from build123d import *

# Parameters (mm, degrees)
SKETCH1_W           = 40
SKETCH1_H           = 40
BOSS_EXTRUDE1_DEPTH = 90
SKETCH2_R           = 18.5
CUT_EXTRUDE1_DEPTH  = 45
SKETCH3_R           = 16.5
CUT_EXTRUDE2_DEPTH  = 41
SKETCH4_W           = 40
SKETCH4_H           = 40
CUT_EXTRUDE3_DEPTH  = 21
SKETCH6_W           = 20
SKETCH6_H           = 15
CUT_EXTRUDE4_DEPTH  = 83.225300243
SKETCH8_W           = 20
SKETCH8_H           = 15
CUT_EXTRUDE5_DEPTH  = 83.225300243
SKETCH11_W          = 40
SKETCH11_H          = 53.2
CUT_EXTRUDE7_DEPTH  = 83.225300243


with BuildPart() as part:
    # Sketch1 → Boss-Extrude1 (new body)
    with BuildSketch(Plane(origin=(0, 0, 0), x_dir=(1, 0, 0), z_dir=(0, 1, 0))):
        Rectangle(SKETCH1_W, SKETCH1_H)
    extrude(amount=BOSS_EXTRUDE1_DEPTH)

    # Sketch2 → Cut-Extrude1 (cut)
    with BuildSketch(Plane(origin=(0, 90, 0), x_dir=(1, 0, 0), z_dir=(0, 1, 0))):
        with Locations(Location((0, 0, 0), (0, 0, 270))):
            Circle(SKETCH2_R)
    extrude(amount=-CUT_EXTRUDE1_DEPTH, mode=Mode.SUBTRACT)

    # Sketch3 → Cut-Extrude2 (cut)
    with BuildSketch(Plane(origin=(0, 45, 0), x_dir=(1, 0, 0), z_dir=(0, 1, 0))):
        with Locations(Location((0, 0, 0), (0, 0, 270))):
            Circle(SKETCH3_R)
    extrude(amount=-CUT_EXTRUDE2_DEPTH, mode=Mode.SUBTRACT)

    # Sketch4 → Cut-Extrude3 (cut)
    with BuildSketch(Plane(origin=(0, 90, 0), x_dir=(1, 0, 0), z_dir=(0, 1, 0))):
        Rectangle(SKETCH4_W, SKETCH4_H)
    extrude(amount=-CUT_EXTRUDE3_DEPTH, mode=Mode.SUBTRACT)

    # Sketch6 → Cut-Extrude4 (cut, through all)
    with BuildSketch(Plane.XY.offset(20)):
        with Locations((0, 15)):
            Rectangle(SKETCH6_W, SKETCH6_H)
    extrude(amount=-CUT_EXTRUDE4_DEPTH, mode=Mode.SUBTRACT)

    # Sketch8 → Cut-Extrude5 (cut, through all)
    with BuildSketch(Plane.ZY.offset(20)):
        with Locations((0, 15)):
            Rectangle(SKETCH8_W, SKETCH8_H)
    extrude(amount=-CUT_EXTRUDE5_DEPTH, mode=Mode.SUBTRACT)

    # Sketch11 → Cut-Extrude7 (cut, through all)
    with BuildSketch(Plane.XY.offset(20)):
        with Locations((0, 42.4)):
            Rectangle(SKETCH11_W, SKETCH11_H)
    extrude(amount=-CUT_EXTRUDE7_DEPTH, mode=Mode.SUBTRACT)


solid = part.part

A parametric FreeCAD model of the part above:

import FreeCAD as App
import Part
import Sketcher
from FreeCAD import Vector

doc = App.newDocument("Part")
body = doc.addObject("PartDesign::Body", "Body")

# Sketch on XZ plane
sketch1 = body.newObject("Sketcher::SketchObject", "Sketch")
sketch1.AttachmentSupport = (doc.getObject("XZ_Plane"), [""])
sketch1.MapMode = "FlatFace"
sketch1.addGeometry(Part.LineSegment(Vector(-20, -20, 0), Vector(-20, 20, 0)), False)
sketch1.addGeometry(Part.LineSegment(Vector(-20, 20, 0), Vector(20, 20, 0)), False)
sketch1.addGeometry(Part.LineSegment(Vector(20, 20, 0), Vector(20, -20, 0)), False)
sketch1.addGeometry(Part.LineSegment(Vector(20, -20, 0), Vector(-20, -20, 0)), False)
sketch1.addConstraint(Sketcher.Constraint("Coincident", 0, 2, 1, 1))
sketch1.addConstraint(Sketcher.Constraint("Coincident", 1, 2, 2, 1))
sketch1.addConstraint(Sketcher.Constraint("Coincident", 2, 2, 3, 1))
sketch1.addConstraint(Sketcher.Constraint("Coincident", 3, 2, 0, 1))
sketch1.addConstraint(Sketcher.Constraint("Vertical", 0))
sketch1.addConstraint(Sketcher.Constraint("Horizontal", 1))
sketch1.addConstraint(Sketcher.Constraint("Vertical", 2))
sketch1.addConstraint(Sketcher.Constraint("Horizontal", 3))
sketch1.addConstraint(Sketcher.Constraint("Symmetric", 0, 2, 2, 2, -1, 1))
sketch1.addConstraint(Sketcher.Constraint("Equal", 3, 0))
sketch1.addConstraint(Sketcher.Constraint("DistanceX", 1, 1, 1, 2, 40.0))
pad1 = body.newObject("PartDesign::Pad", "Pad")
pad1.Profile = sketch1
pad1.Length = 90
pad1.Reversed = True

# Sketch on XZ plane
sketch2 = body.newObject("Sketcher::SketchObject", "Sketch001")
sketch2.AttachmentSupport = (doc.getObject("XZ_Plane"), [""])
sketch2.MapMode = "FlatFace"
sketch2.AttachmentOffset = App.Placement(Vector(0, 0, -90), App.Rotation())
sketch2.addGeometry(Part.Circle(Vector(0, 0, 0), Vector(0, 0, 1), 18), False)
sketch2.addConstraint(Sketcher.Constraint("Coincident", 0, 3, -1, 1))
sketch2.addConstraint(Sketcher.Constraint("Diameter", 0, 37.0))
pocket1 = body.newObject("PartDesign::Pocket", "Pocket")
pocket1.Profile = sketch2
pocket1.Length = 45
pocket1.Reversed = True

# Sketch on XZ plane
sketch3 = body.newObject("Sketcher::SketchObject", "Sketch002")
sketch3.AttachmentSupport = (doc.getObject("XZ_Plane"), [""])
sketch3.MapMode = "FlatFace"
sketch3.AttachmentOffset = App.Placement(Vector(0, 0, -45), App.Rotation())
sketch3.addGeometry(Part.Circle(Vector(0, 0, 0), Vector(0, 0, 1), 16), False)
sketch3.addConstraint(Sketcher.Constraint("Coincident", 0, 3, -1, 1))
sketch3.addConstraint(Sketcher.Constraint("Diameter", 0, 33.0))
pocket2 = body.newObject("PartDesign::Pocket", "Pocket001")
pocket2.Profile = sketch3
pocket2.Length = 41
pocket2.Reversed = True

# Sketch on XZ plane
sketch4 = body.newObject("Sketcher::SketchObject", "Sketch003")
sketch4.AttachmentSupport = (doc.getObject("XZ_Plane"), [""])
sketch4.MapMode = "FlatFace"
sketch4.AttachmentOffset = App.Placement(Vector(0, 0, -90), App.Rotation())
sketch4.addGeometry(Part.LineSegment(Vector(-20, -20, 0), Vector(-20, 20, 0)), False)
sketch4.addGeometry(Part.LineSegment(Vector(-20, 20, 0), Vector(20, 20, 0)), False)
sketch4.addGeometry(Part.LineSegment(Vector(20, 20, 0), Vector(20, -20, 0)), False)
sketch4.addGeometry(Part.LineSegment(Vector(20, -20, 0), Vector(-20, -20, 0)), False)
sketch4.addConstraint(Sketcher.Constraint("Coincident", 0, 2, 1, 1))
sketch4.addConstraint(Sketcher.Constraint("Coincident", 1, 2, 2, 1))
sketch4.addConstraint(Sketcher.Constraint("Coincident", 2, 2, 3, 1))
sketch4.addConstraint(Sketcher.Constraint("Coincident", 3, 2, 0, 1))
sketch4.addConstraint(Sketcher.Constraint("Vertical", 0))
sketch4.addConstraint(Sketcher.Constraint("Horizontal", 1))
sketch4.addConstraint(Sketcher.Constraint("Vertical", 2))
sketch4.addConstraint(Sketcher.Constraint("Horizontal", 3))
sketch4.addConstraint(Sketcher.Constraint("Symmetric", 0, 2, 2, 2, -1, 1))
sketch4.addConstraint(Sketcher.Constraint("Equal", 3, 0))
sketch4.addConstraint(Sketcher.Constraint("DistanceX", 1, 1, 1, 2, 40.0))
pocket3 = body.newObject("PartDesign::Pocket", "Pocket002")
pocket3.Profile = sketch4
pocket3.Length = 21
pocket3.Reversed = True

# Sketch on XY plane
sketch5 = body.newObject("Sketcher::SketchObject", "Sketch004")
sketch5.AttachmentSupport = (doc.getObject("XY_Plane"), [""])
sketch5.MapMode = "FlatFace"
sketch5.AttachmentOffset = App.Placement(Vector(0, 0, 20), App.Rotation())
sketch5.addGeometry(Part.LineSegment(Vector(-10, 22, 0), Vector(-10, 8, 0)), False)
sketch5.addGeometry(Part.LineSegment(Vector(-10, 8, 0), Vector(10, 8, 0)), False)
sketch5.addGeometry(Part.LineSegment(Vector(10, 8, 0), Vector(10, 22, 0)), False)
sketch5.addGeometry(Part.LineSegment(Vector(10, 22, 0), Vector(-10, 22, 0)), False)
sketch5.addConstraint(Sketcher.Constraint("Coincident", 0, 2, 1, 1))
sketch5.addConstraint(Sketcher.Constraint("Coincident", 1, 2, 2, 1))
sketch5.addConstraint(Sketcher.Constraint("Coincident", 2, 2, 3, 1))
sketch5.addConstraint(Sketcher.Constraint("Coincident", 3, 2, 0, 1))
sketch5.addConstraint(Sketcher.Constraint("Vertical", 0))
sketch5.addConstraint(Sketcher.Constraint("Horizontal", 1))
sketch5.addConstraint(Sketcher.Constraint("Vertical", 2))
sketch5.addConstraint(Sketcher.Constraint("Horizontal", 3))
sketch5.addConstraint(Sketcher.Constraint("DistanceX", 1, 1, 1, 2, 20.0))
sketch5.addConstraint(Sketcher.Constraint("DistanceY", 0, 2, 0, 1, 15.0))
sketch5.addConstraint(Sketcher.Constraint("DistanceX", 0, 2, -1, 1, 10.0))
sketch5.addConstraint(Sketcher.Constraint("DistanceY", -1, 1, 0, 2, 7.5))
pocket4 = body.newObject("PartDesign::Pocket", "Pocket003")
pocket4.Profile = sketch5
pocket4.Type = "ThroughAll"

# Sketch on YZ plane
sketch6 = body.newObject("Sketcher::SketchObject", "Sketch005")
sketch6.AttachmentSupport = (doc.getObject("YZ_Plane"), [""])
sketch6.MapMode = "FlatFace"
sketch6.AttachmentOffset = App.Placement(Vector(0, 0, -20), App.Rotation())
sketch6.addGeometry(Part.LineSegment(Vector(22, -10, 0), Vector(8, -10, 0)), False)
sketch6.addGeometry(Part.LineSegment(Vector(8, -10, 0), Vector(8, 10, 0)), False)
sketch6.addGeometry(Part.LineSegment(Vector(8, 10, 0), Vector(22, 10, 0)), False)
sketch6.addGeometry(Part.LineSegment(Vector(22, 10, 0), Vector(22, -10, 0)), False)
sketch6.addConstraint(Sketcher.Constraint("Coincident", 0, 2, 1, 1))
sketch6.addConstraint(Sketcher.Constraint("Coincident", 1, 2, 2, 1))
sketch6.addConstraint(Sketcher.Constraint("Coincident", 2, 2, 3, 1))
sketch6.addConstraint(Sketcher.Constraint("Coincident", 3, 2, 0, 1))
sketch6.addConstraint(Sketcher.Constraint("Horizontal", 0))
sketch6.addConstraint(Sketcher.Constraint("Vertical", 1))
sketch6.addConstraint(Sketcher.Constraint("Horizontal", 2))
sketch6.addConstraint(Sketcher.Constraint("Vertical", 3))
sketch6.addConstraint(Sketcher.Constraint("DistanceX", 0, 2, 0, 1, 15.0))
sketch6.addConstraint(Sketcher.Constraint("DistanceY", 1, 1, 1, 2, 20.0))
sketch6.addConstraint(Sketcher.Constraint("DistanceY", 0, 2, -1, 1, 10.0))
sketch6.addConstraint(Sketcher.Constraint("DistanceX", -1, 1, 0, 2, 7.5))
pocket5 = body.newObject("PartDesign::Pocket", "Pocket004")
pocket5.Profile = sketch6
pocket5.Type = "ThroughAll"
pocket5.Reversed = True

# Sketch on XY plane
sketch7 = body.newObject("Sketcher::SketchObject", "Sketch006")
sketch7.AttachmentSupport = (doc.getObject("XY_Plane"), [""])
sketch7.MapMode = "FlatFace"
sketch7.AttachmentOffset = App.Placement(Vector(0, 0, 20), App.Rotation())
sketch7.addGeometry(Part.LineSegment(Vector(-20, 69, 0), Vector(-20, 16, 0)), False)
sketch7.addGeometry(Part.LineSegment(Vector(-20, 16, 0), Vector(20, 16, 0)), False)
sketch7.addGeometry(Part.LineSegment(Vector(20, 16, 0), Vector(20, 69, 0)), False)
sketch7.addGeometry(Part.LineSegment(Vector(20, 69, 0), Vector(-20, 69, 0)), False)
sketch7.addConstraint(Sketcher.Constraint("Coincident", 0, 2, 1, 1))
sketch7.addConstraint(Sketcher.Constraint("Coincident", 1, 2, 2, 1))
sketch7.addConstraint(Sketcher.Constraint("Coincident", 2, 2, 3, 1))
sketch7.addConstraint(Sketcher.Constraint("Coincident", 3, 2, 0, 1))
sketch7.addConstraint(Sketcher.Constraint("Vertical", 0))
sketch7.addConstraint(Sketcher.Constraint("Horizontal", 1))
sketch7.addConstraint(Sketcher.Constraint("Vertical", 2))
sketch7.addConstraint(Sketcher.Constraint("Horizontal", 3))
sketch7.addConstraint(Sketcher.Constraint("DistanceX", 1, 1, 1, 2, 40.0))
sketch7.addConstraint(Sketcher.Constraint("DistanceY", 0, 2, 0, 1, 53.2))
sketch7.addConstraint(Sketcher.Constraint("DistanceX", 0, 2, -1, 1, 20.0))
sketch7.addConstraint(Sketcher.Constraint("DistanceY", -1, 1, 2, 2, 69.0))
pocket6 = body.newObject("PartDesign::Pocket", "Pocket005")
pocket6.Profile = sketch7
pocket6.Type = "ThroughAll"

doc.recompute()
